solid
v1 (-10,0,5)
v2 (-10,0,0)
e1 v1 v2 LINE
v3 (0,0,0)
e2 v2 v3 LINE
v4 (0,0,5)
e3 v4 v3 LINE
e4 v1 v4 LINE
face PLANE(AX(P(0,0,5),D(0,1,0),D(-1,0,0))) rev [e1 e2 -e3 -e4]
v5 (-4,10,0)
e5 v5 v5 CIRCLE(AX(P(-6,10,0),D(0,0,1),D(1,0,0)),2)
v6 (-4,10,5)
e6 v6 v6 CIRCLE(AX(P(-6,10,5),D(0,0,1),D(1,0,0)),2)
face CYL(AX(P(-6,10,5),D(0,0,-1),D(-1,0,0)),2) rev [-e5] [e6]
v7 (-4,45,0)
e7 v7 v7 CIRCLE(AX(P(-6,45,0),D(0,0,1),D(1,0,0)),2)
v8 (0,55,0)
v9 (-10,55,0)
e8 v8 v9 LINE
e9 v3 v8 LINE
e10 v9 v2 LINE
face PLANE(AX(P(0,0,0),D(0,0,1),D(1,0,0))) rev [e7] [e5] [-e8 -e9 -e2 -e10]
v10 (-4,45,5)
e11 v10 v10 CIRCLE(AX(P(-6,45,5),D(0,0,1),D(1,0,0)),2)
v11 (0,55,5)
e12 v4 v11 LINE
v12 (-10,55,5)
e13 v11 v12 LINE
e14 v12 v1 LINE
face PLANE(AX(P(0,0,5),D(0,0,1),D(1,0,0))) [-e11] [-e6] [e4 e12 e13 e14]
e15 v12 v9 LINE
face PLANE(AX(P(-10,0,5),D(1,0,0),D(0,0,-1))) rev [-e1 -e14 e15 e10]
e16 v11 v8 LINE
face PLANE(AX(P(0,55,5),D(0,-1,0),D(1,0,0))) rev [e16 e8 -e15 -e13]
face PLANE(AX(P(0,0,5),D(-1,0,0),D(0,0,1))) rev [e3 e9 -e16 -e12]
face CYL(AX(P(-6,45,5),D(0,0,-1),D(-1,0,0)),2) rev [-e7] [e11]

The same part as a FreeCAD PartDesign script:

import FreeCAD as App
import Part
import Sketcher
from FreeCAD import Vector

doc = App.newDocument("Part")
params = doc.addObject("Spreadsheet::Sheet", "Params")
for row, (alias, value) in enumerate([
    ("sketch1_diameter", "4 mm"),
    ("sketch1_width", "10 mm"),
    ("sketch1_height", "55 mm"),
    ("pad1_length", "5 mm"),
], start=1):
    params.set(f"A{row}", alias)
    params.set(f"B{row}", "=" + value)
    params.setAlias(f"B{row}", alias)

body = doc.addObject("PartDesign::Body", "Body")

sketch1 = body.newObject("Sketcher::SketchObject", "Sketch")
sketch1.AttachmentSupport = (doc.getObject("XY_Plane"), [""])
sketch1.MapMode = "FlatFace"
sketch1.addGeometry([
    Part.LineSegment(Vector(-10, 55, 0), Vector(-10, 0, 0)),
    Part.LineSegment(Vector(-10, 0, 0), Vector(0, 0, 0)),
    Part.LineSegment(Vector(0, 0, 0), Vector(0, 55, 0)),
    Part.LineSegment(Vector(0, 55, 0), Vector(-10, 55, 0)),
    Part.Circle(Vector(-6, 10, 0), Vector(0, 0, 1), 2),
    Part.Circle(Vector(-6, 45, 0), Vector(0, 0, 1), 2),
], False)
sketch1.addConstraint([
    Sketcher.Constraint("Coincident", 0, 2, 1, 1),
    Sketcher.Constraint("Coincident", 1, 2, 2, 1),
    Sketcher.Constraint("Coincident", 2, 2, 3, 1),
    Sketcher.Constraint("Coincident", 3, 2, 0, 1),
    Sketcher.Constraint("Vertical", 0),
    Sketcher.Constraint("Horizontal", 1),
    Sketcher.Constraint("Vertical", 2),
    Sketcher.Constraint("Horizontal", 3),
    Sketcher.Constraint("Coincident", 1, 2, -1, 1),
    Sketcher.Constraint("Equal", 4, 5),
    Sketcher.Constraint("Vertical", 4, 3, 5, 3),
    Sketcher.Constraint("Diameter", 4, 4.0),
    Sketcher.Constraint("DistanceX", 1, 1, 1, 2, 10.0),
    Sketcher.Constraint("DistanceY", 0, 2, 0, 1, 55.0),
    Sketcher.Constraint("DistanceX", 4, 3, -1, 1, 6.0),
    Sketcher.Constraint("DistanceY", -1, 1, 4, 3, 10.0),
    Sketcher.Constraint("DistanceY", -1, 1, 5, 3, 45.0),
])
sketch1.setExpression("Constraints[11]", "Params.sketch1_diameter")
sketch1.setExpression("Constraints[12]", "Params.sketch1_width")
sketch1.setExpression("Constraints[13]", "Params.sketch1_height")
pad1 = body.newObject("PartDesign::Pad", "Pad")
pad1.Profile = sketch1
pad1.setExpression("Length", "Params.pad1_length")

doc.recompute()
